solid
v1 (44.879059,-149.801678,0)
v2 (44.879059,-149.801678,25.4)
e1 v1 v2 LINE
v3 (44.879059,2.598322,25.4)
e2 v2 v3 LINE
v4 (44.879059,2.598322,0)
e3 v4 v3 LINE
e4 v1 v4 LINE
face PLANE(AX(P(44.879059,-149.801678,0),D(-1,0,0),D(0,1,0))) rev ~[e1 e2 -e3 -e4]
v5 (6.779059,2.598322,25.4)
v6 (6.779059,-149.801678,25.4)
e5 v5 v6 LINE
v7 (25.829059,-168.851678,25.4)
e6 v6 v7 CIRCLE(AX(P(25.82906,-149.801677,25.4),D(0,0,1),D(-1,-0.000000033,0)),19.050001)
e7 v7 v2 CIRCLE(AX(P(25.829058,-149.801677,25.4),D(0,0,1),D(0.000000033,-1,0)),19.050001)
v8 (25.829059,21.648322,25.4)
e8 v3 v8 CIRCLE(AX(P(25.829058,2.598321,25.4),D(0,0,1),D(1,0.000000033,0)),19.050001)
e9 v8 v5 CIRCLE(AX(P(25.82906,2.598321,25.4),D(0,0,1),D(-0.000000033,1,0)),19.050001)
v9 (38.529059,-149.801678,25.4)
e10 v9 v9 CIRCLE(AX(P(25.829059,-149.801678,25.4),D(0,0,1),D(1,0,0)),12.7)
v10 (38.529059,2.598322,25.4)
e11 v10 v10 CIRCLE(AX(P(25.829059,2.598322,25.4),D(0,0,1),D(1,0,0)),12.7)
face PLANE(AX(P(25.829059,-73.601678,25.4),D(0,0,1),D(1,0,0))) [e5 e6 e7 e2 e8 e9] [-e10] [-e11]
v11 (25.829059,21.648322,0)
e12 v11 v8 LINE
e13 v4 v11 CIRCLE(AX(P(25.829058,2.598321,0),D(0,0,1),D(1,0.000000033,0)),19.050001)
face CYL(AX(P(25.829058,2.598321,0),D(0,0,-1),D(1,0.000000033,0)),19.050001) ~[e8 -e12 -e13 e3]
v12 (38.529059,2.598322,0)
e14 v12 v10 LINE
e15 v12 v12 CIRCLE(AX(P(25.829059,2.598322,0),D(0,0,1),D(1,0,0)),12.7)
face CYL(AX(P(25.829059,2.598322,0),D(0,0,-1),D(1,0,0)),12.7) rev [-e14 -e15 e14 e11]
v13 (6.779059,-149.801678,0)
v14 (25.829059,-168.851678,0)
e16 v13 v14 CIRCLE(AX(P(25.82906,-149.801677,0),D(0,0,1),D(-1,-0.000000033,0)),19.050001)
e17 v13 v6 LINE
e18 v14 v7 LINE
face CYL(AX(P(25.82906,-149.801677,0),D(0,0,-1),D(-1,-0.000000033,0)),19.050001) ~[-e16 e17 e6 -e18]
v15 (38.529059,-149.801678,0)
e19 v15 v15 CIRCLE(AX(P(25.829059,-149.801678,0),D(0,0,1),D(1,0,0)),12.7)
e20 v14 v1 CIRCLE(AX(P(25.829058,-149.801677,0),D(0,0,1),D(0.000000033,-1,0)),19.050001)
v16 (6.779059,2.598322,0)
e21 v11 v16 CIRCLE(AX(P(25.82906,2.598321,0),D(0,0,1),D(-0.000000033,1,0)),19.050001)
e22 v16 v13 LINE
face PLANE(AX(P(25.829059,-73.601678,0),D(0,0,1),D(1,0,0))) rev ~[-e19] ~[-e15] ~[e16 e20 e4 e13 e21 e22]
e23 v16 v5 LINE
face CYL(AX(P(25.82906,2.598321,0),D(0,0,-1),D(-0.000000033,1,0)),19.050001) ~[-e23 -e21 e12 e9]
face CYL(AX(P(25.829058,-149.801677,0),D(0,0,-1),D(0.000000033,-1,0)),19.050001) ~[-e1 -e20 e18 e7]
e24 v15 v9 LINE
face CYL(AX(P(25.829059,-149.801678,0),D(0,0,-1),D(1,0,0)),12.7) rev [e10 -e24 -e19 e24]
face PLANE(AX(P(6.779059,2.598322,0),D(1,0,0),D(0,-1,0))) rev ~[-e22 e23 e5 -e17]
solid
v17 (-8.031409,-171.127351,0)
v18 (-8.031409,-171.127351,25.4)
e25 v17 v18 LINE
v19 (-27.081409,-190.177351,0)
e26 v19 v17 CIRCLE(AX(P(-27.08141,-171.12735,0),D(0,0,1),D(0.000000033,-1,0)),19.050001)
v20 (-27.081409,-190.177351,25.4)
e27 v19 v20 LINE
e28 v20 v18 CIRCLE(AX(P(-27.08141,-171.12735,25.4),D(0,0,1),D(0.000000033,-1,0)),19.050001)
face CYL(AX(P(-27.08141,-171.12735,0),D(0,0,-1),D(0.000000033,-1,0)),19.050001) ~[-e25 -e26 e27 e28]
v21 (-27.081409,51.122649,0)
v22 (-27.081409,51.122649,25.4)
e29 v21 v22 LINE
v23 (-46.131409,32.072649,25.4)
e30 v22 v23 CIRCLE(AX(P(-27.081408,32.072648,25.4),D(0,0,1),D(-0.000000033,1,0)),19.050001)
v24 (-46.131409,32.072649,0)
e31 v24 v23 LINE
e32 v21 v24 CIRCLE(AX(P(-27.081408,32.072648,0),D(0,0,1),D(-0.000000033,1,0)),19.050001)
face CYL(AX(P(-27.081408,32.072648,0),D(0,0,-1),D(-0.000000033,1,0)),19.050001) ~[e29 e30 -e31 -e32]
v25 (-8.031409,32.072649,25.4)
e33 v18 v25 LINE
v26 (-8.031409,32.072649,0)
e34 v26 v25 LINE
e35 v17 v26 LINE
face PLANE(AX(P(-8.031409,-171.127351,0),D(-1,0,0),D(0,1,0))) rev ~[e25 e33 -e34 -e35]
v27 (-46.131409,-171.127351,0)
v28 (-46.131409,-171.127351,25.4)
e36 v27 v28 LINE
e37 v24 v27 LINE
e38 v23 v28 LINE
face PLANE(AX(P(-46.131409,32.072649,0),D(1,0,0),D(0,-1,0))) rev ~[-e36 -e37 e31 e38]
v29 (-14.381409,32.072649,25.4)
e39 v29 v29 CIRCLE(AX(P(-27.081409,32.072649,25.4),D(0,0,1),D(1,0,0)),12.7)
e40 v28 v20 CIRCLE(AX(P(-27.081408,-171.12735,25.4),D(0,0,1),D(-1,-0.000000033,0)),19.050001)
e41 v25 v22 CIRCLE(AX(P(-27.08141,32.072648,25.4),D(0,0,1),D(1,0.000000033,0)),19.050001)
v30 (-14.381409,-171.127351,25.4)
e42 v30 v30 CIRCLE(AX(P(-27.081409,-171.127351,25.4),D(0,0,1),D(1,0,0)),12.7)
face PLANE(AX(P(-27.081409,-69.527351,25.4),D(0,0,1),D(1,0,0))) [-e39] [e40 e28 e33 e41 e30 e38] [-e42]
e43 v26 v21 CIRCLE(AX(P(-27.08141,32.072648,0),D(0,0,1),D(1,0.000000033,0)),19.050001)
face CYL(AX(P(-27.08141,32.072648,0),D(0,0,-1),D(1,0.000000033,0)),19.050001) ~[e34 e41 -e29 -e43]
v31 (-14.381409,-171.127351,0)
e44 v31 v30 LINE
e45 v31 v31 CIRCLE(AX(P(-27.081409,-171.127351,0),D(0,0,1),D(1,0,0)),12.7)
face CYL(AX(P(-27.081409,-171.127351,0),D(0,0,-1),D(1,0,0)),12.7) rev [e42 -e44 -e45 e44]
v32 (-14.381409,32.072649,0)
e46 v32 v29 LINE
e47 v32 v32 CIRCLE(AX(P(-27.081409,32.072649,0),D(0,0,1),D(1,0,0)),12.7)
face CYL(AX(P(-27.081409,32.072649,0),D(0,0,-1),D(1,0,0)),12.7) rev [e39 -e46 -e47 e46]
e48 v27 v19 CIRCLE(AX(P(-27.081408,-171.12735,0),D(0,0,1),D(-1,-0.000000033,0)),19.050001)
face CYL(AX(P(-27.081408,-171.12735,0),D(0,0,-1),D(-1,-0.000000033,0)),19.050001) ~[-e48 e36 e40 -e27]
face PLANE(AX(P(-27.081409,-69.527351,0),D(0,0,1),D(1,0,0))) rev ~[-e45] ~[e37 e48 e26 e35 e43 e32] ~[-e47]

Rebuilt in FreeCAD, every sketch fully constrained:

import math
import FreeCAD as App
import Part
import Sketcher

V = App.Vector
Q = App.Units.Quantity

doc = App.newDocument("Part")
params = doc.addObject("Spreadsheet::Sheet", "Params")
for row, (alias, value) in enumerate([
    ("sketch1_diameter", "1 in"),
    ("sketch1_height", "8 in"),
    ("sketch1_radius", "0.75 in"),
    ("pad1_length", "1 in"),
    ("sketch2_diameter", "1 in"),
    ("sketch2_height", "6 in"),
    ("sketch2_radius", "0.75 in"),
    ("pad2_length", "1 in"),
], start=1):
    params.set(f"A{row}", alias)
    params.set(f"B{row}", "=" + value)
    params.setAlias(f"B{row}", alias)

body = doc.addObject("PartDesign::Body", "Body")

# Sketch on XY plane
sketch1 = doc.addObject("Sketcher::SketchObject", "Sketch")
body.addObject(sketch1)
sketch1.AttachmentSupport = (doc.XY_Plane, [""])
sketch1.MapMode = "FlatFace"
sketch1.addGeometry([
    Part.ArcOfCircle(Part.Circle(V(-27.081408, 32.072648, 0), V(0, 0, 1), 19.050001), math.radians(90.000002), math.radians(179.999998)),  # 0
    Part.LineSegment(V(-46.131409, 32.072649, 0), V(-46.131409, -171.127351, 0)),  # 1
    Part.ArcOfCircle(Part.Circle(V(-27.081408, -171.12735, 0), V(0, 0, 1), 19.050001), math.radians(-179.999998), math.radians(-90.000002)),  # 2
    Part.ArcOfCircle(Part.Circle(V(-27.08141, -171.12735, 0), V(0, 0, 1), 19.050001), math.radians(-89.999998), math.radians(-0.000002)),  # 3
    Part.LineSegment(V(-8.031409, -171.127351, 0), V(-8.031409, 32.072649, 0)),  # 4
    Part.ArcOfCircle(Part.Circle(V(-27.08141, 32.072648, 0), V(0, 0, 1), 19.050001), math.radians(0.000002), math.radians(89.999998)),  # 5
    Part.Circle(V(-27.081409, -171.127351, 0), V(0, 0, 1), 12.7),  # 6
    Part.Circle(V(-27.081409, 32.072649, 0), V(0, 0, 1), 12.7),  # 7
], False)
sketch1.addConstraint([
    Sketcher.Constraint("Tangent", 0, 2, 1, 1),
    Sketcher.Constraint("Tangent", 1, 2, 2, 1),
    Sketcher.Constraint("Tangent", 2, 2, 3, 1),
    Sketcher.Constraint("Tangent", 3, 2, 4, 1),
    Sketcher.Constraint("Tangent", 4, 2, 5, 1),
    Sketcher.Constraint("Tangent", 5, 2, 0, 1),
    Sketcher.Constraint("Vertical", 1),
    Sketcher.Constraint("Vertical", 4),
    Sketcher.Constraint("Coincident", 6, 3, 2, 3),
    Sketcher.Constraint("Coincident", 7, 3, 0, 3),
    Sketcher.Constraint("Equal", 0, 2),
    Sketcher.Constraint("Equal", 2, 3),
    Sketcher.Constraint("Equal", 6, 7),
    Sketcher.Constraint("Vertical", 7, 3, 2, 2),
    Sketcher.Constraint("Vertical", 2, 2, 5, 2),
    Sketcher.Constraint("Diameter", 6, Q("1 in")),
    Sketcher.Constraint("DistanceY", 1, 2, 1, 1, Q("8 in")),
    Sketcher.Constraint("Radius", 0, Q("0.75 in")),
    Sketcher.Constraint("DistanceX", 0, 3, -1, 1, 27.081408),
    Sketcher.Constraint("DistanceY", -1, 1, 0, 3, 32.072648),
])
sketch1.setExpression("Constraints[15]", "Params.sketch1_diameter")
sketch1.setExpression("Constraints[16]", "Params.sketch1_height")
sketch1.setExpression("Constraints[17]", "Params.sketch1_radius")
pad1 = doc.addObject("PartDesign::Pad", "Pad")
body.addObject(pad1)
pad1.Profile = sketch1
pad1.setExpression("Length", "Params.pad1_length")
body2 = doc.addObject("PartDesign::Body", "Body001")

# Sketch on XY plane
sketch2 = doc.addObject("Sketcher::SketchObject", "Sketch001")
body2.addObject(sketch2)
sketch2.AttachmentSupport = (doc.getObject("XY_Plane001"), [""])
sketch2.MapMode = "FlatFace"
sketch2.addGeometry([
    Part.ArcOfCircle(Part.Circle(V(25.82906, 2.598321, 0), V(0, 0, 1), 19.050001), math.radians(90.000002), math.radians(179.999998)),  # 0
    Part.LineSegment(V(6.779059, 2.598322, 0), V(6.779059, -149.801678, 0)),  # 1
    Part.ArcOfCircle(Part.Circle(V(25.82906, -149.801677, 0), V(0, 0, 1), 19.050001), math.radians(-179.999998), math.radians(-90.000002)),  # 2
    Part.ArcOfCircle(Part.Circle(V(25.829058, -149.801677, 0), V(0, 0, 1), 19.050001), math.radians(-89.999998), math.radians(-0.000002)),  # 3
    Part.LineSegment(V(44.879059, -149.801678, 0), V(44.879059, 2.598322, 0)),  # 4
    Part.ArcOfCircle(Part.Circle(V(25.829058, 2.598321, 0), V(0, 0, 1), 19.050001), math.radians(0.000002), math.radians(89.999998)),  # 5
    Part.Circle(V(25.829059, -149.801678, 0), V(0, 0, 1), 12.7),  # 6
    Part.Circle(V(25.829059, 2.598322, 0), V(0, 0, 1), 12.7),  # 7
], False)
sketch2.addConstraint([
    Sketcher.Constraint("Tangent", 0, 2, 1, 1),
    Sketcher.Constraint("Tangent", 1, 2, 2, 1),
    Sketcher.Constraint("Tangent", 2, 2, 3, 1),
    Sketcher.Constraint("Tangent", 3, 2, 4, 1),
    Sketcher.Constraint("Tangent", 4, 2, 5, 1),
    Sketcher.Constraint("Tangent", 5, 2, 0, 1),
    Sketcher.Constraint("Vertical", 1),
    Sketcher.Constraint("Vertical", 4),
    Sketcher.Constraint("Coincident", 6, 3, 2, 3),
    Sketcher.Constraint("Coincident", 7, 3, 0, 3),
    Sketcher.Constraint("Equal", 0, 2),
    Sketcher.Constraint("Equal", 2, 3),
    Sketcher.Constraint("Equal", 6, 7),
    Sketcher.Constraint("Vertical", 7, 3, 2, 2),
    Sketcher.Constraint("Vertical", 2, 2, 5, 2),
    Sketcher.Constraint("Diameter", 6, Q("1 in")),
    Sketcher.Constraint("DistanceY", 1, 2, 1, 1, Q("6 in")),
    Sketcher.Constraint("Radius", 0, Q("0.75 in")),
    Sketcher.Constraint("DistanceX", -1, 1, 0, 3, 25.82906),
    Sketcher.Constraint("DistanceY", -1, 1, 0, 3, 2.598321),
])
sketch2.setExpression("Constraints[15]", "Params.sketch2_diameter")
sketch2.setExpression("Constraints[16]", "Params.sketch2_height")
sketch2.setExpression("Constraints[17]", "Params.sketch2_radius")
pad2 = doc.addObject("PartDesign::Pad", "Pad001")
body2.addObject(pad2)
pad2.Profile = sketch2
pad2.setExpression("Length", "Params.pad2_length")

doc.recompute()
